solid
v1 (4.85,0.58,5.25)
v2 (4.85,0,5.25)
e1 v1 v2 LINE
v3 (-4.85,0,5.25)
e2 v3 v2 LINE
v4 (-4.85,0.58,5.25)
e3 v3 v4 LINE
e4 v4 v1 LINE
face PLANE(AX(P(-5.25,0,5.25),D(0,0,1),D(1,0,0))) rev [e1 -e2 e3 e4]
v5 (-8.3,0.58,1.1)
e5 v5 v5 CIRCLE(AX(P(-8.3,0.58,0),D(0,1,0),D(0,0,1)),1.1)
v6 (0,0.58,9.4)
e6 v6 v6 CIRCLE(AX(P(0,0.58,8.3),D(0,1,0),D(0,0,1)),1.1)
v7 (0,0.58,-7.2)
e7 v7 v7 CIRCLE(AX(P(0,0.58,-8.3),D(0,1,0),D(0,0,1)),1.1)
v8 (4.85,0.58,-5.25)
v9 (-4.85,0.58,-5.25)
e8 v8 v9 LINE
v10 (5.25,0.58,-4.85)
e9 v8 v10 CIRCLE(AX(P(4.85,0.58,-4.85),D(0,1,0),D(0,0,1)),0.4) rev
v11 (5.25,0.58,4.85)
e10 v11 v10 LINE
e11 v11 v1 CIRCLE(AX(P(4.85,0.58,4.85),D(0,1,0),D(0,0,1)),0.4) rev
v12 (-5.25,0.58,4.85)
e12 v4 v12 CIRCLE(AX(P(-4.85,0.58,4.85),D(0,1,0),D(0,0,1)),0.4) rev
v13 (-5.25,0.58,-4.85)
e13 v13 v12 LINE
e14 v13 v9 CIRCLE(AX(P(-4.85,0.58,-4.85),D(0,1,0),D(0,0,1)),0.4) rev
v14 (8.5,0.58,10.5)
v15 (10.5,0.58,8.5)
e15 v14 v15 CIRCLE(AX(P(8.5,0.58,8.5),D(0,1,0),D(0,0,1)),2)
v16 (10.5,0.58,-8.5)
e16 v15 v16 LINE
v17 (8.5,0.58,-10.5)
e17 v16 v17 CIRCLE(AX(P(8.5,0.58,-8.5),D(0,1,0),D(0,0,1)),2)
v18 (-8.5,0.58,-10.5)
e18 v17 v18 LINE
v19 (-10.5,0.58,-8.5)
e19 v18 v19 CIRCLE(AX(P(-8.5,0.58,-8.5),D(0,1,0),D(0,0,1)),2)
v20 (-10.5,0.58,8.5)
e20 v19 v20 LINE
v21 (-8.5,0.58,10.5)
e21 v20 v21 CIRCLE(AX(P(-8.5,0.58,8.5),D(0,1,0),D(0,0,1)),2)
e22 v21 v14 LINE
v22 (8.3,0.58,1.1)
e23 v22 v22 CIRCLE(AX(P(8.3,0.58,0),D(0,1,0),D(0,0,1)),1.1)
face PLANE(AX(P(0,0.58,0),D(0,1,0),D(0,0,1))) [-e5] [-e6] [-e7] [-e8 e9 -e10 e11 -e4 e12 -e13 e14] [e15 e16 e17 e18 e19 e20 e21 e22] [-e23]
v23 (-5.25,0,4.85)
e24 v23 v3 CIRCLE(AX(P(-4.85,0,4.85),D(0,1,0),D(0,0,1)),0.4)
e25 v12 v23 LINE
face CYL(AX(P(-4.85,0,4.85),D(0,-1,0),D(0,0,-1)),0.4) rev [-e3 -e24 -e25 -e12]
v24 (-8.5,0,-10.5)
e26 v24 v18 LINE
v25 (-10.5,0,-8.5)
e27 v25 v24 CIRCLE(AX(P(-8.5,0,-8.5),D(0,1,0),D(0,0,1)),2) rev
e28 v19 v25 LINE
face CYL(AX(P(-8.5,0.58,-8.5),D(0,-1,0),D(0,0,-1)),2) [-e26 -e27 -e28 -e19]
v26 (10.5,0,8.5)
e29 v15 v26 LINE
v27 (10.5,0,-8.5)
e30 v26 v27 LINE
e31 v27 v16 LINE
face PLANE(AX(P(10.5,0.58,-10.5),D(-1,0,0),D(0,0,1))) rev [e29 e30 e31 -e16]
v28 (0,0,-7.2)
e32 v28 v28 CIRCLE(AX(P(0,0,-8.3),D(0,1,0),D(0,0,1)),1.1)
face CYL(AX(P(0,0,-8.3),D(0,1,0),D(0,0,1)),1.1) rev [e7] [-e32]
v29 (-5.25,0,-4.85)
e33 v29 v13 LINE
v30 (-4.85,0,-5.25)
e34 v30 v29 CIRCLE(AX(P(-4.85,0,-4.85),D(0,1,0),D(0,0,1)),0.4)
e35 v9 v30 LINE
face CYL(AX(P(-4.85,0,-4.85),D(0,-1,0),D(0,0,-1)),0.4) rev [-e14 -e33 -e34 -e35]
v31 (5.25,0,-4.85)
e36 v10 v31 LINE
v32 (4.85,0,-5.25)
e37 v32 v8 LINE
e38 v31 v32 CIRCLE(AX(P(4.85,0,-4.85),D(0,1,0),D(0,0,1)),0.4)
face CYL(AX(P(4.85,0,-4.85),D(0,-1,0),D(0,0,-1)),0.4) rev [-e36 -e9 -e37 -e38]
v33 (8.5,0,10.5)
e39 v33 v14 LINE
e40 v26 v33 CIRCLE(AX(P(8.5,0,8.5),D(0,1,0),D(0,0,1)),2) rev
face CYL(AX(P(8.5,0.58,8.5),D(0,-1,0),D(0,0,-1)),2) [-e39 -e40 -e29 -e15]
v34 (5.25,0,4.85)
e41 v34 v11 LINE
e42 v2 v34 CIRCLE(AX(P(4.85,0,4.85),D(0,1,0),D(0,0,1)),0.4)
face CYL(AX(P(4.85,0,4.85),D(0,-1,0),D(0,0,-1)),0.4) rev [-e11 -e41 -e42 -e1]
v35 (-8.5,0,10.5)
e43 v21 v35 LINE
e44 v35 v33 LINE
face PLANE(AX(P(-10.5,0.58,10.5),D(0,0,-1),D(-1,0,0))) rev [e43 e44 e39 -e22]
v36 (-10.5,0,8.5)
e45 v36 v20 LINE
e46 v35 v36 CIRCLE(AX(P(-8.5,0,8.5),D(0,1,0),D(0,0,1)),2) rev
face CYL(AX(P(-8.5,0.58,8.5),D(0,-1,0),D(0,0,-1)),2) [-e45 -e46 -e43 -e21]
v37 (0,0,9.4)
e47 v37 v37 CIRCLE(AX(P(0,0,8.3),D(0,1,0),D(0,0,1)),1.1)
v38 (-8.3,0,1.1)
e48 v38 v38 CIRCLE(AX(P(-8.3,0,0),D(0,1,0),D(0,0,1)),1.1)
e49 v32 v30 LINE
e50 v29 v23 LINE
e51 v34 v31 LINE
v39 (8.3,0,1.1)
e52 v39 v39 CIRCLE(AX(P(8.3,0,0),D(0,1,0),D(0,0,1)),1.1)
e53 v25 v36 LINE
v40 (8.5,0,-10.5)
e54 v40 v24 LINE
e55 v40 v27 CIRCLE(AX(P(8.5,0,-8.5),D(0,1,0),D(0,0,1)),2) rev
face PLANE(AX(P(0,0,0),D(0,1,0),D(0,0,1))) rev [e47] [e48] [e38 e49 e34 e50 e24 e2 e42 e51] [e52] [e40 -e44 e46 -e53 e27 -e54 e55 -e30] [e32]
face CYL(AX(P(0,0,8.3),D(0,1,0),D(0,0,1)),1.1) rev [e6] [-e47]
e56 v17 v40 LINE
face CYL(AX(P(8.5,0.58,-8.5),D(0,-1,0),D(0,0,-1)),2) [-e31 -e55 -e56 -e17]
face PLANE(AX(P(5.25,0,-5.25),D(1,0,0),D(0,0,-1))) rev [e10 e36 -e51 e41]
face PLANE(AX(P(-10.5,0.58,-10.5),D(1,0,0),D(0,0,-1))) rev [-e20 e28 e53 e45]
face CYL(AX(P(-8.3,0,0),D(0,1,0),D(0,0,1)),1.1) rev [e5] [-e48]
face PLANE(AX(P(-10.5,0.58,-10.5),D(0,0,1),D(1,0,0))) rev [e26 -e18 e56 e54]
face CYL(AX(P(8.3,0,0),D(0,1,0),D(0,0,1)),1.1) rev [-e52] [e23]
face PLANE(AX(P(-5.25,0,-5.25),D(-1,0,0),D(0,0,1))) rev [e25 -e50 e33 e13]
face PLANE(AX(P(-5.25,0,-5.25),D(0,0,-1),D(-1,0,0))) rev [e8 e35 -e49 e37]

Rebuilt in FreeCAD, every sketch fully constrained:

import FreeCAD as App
import Part
import Sketcher
from FreeCAD import Vector


def edges_at(feature, points):
    """Names of the edges that pass closest to the given points."""
    edges = feature.Shape.Edges
    near = lambda p: min(range(len(edges)), key=lambda i: edges[i].distToShape(Part.Vertex(*p))[0])
    return sorted({f"Edge{near(p) + 1}" for p in points})

doc = App.newDocument("Part")
body = doc.addObject("PartDesign::Body", "Body")

# Sketch on XZ plane
sketch1 = body.newObject("Sketcher::SketchObject", "Sketch")
sketch1.AttachmentSupport = (doc.getObject("XZ_Plane"), [""])
sketch1.MapMode = "FlatFace"
sketch1.addGeometry([
    Part.LineSegment(Vector(-10, -10, 0), Vector(-10, 10, 0)),
    Part.LineSegment(Vector(-10, 10, 0), Vector(10, 10, 0)),
    Part.LineSegment(Vector(10, 10, 0), Vector(10, -10, 0)),
    Part.LineSegment(Vector(10, -10, 0), Vector(-10, -10, 0)),
], False)
sketch1.addConstraint([
    Sketcher.Constraint("Coincident", 0, 2, 1, 1),
    Sketcher.Constraint("Coincident", 1, 2, 2, 1),
    Sketcher.Constraint("Coincident", 2, 2, 3, 1),
    Sketcher.Constraint("Coincident", 3, 2, 0, 1),
    Sketcher.Constraint("Vertical", 0),
    Sketcher.Constraint("Horizontal", 1),
    Sketcher.Constraint("Vertical", 2),
    Sketcher.Constraint("Horizontal", 3),
    Sketcher.Constraint("Symmetric", 0, 2, 2, 2, -1, 1),
    Sketcher.Constraint("Equal", 3, 0),
    Sketcher.Constraint("DistanceX", 1, 1, 1, 2, 21.0),
])
pad1 = body.newObject("PartDesign::Pad", "Pad")
pad1.Profile = sketch1
pad1.Length = 0.58
pad1.Reversed = True

# Sketch on XZ plane
sketch2 = body.newObject("Sketcher::SketchObject", "Sketch001")
sketch2.AttachmentSupport = (doc.getObject("XZ_Plane"), [""])
sketch2.MapMode = "FlatFace"
sketch2.AttachmentOffset = App.Placement(Vector(0, 0, -0.58), App.Rotation())
sketch2.addGeometry([
    Part.LineSegment(Vector(-5, -5, 0), Vector(-5, 5, 0)),
    Part.LineSegment(Vector(-5, 5, 0), Vector(5, 5, 0)),
    Part.LineSegment(Vector(5, 5, 0), Vector(5, -5, 0)),
    Part.LineSegment(Vector(5, -5, 0), Vector(-5, -5, 0)),
], False)
sketch2.addConstraint([
    Sketcher.Constraint("Coincident", 0, 2, 1, 1),
    Sketcher.Constraint("Coincident", 1, 2, 2, 1),
    Sketcher.Constraint("Coincident", 2, 2, 3, 1),
    Sketcher.Constraint("Coincident", 3, 2, 0, 1),
    Sketcher.Constraint("Vertical", 0),
    Sketcher.Constraint("Horizontal", 1),
    Sketcher.Constraint("Vertical", 2),
    Sketcher.Constraint("Horizontal", 3),
    Sketcher.Constraint("Symmetric", 0, 2, 2, 2, -1, 1),
    Sketcher.Constraint("Equal", 3, 0),
    Sketcher.Constraint("DistanceX", 1, 1, 1, 2, 10.5),
])
pocket1 = body.newObject("PartDesign::Pocket", "Pocket")
pocket1.Profile = sketch2
pocket1.Type = "ThroughAll"
pocket1.Reversed = True
doc.recompute()

fillet = body.newObject("PartDesign::Fillet", "Fillet")
fillet.Base = (pocket1, edges_at(pocket1, [
    (10.5, 0.29, 10.5),
    (-10.5, 0.29, 10.5),
    (-10.5, 0.29, -10.5),
    (10.5, 0.29, -10.5),
]))
fillet.Radius = 2

# Sketch on XZ plane
sketch3 = body.newObject("Sketcher::SketchObject", "Sketch002")
sketch3.AttachmentSupport = (doc.getObject("XZ_Plane"), [""])
sketch3.MapMode = "FlatFace"
sketch3.AttachmentOffset = App.Placement(Vector(0, 0, -0.58), App.Rotation())
sketch3.addGeometry([
    Part.Circle(Vector(0, -8.3, 0), Vector(0, 0, 1), 1.1),
    Part.Circle(Vector(8.3, 0, 0), Vector(0, 0, 1), 1.1),
    Part.Circle(Vector(0, 8.3, 0), Vector(0, 0, 1), 1.1),
    Part.Circle(Vector(-8.3, 0, 0), Vector(0, 0, 1), 1.1),
], False)
sketch3.addConstraint([
    Sketcher.Constraint("Equal", 0, 1),
    Sketcher.Constraint("Equal", 1, 2),
    Sketcher.Constraint("Equal", 2, 3),
    Sketcher.Constraint("Symmetric", 0, 3, 2, 3, -1, 1),
    Sketcher.Constraint("Symmetric", 1, 3, 3, 3, -1, 1),
    Sketcher.Constraint("PointOnObject", 0, 3, -2),
    Sketcher.Constraint("PointOnObject", 1, 3, -1),
    Sketcher.Constraint("Diameter", 0, 2.2),
    Sketcher.Constraint("DistanceY", 0, 3, -1, 1, 8.3),
    Sketcher.Constraint("DistanceX", -1, 1, 1, 3, 8.3),
])
pocket2 = body.newObject("PartDesign::Pocket", "Pocket001")
pocket2.Profile = sketch3
pocket2.Type = "ThroughAll"
pocket2.Reversed = True
doc.recompute()

fillet2 = body.newObject("PartDesign::Fillet", "Fillet001")
fillet2.Base = (pocket2, edges_at(pocket2, [
    (5.25, 0.29, -5.25),
    (5.25, 0.29, 5.25),
    (-5.25, 0.29, 5.25),
    (-5.25, 0.29, -5.25),
]))
fillet2.Radius = 0.4

doc.recompute()
